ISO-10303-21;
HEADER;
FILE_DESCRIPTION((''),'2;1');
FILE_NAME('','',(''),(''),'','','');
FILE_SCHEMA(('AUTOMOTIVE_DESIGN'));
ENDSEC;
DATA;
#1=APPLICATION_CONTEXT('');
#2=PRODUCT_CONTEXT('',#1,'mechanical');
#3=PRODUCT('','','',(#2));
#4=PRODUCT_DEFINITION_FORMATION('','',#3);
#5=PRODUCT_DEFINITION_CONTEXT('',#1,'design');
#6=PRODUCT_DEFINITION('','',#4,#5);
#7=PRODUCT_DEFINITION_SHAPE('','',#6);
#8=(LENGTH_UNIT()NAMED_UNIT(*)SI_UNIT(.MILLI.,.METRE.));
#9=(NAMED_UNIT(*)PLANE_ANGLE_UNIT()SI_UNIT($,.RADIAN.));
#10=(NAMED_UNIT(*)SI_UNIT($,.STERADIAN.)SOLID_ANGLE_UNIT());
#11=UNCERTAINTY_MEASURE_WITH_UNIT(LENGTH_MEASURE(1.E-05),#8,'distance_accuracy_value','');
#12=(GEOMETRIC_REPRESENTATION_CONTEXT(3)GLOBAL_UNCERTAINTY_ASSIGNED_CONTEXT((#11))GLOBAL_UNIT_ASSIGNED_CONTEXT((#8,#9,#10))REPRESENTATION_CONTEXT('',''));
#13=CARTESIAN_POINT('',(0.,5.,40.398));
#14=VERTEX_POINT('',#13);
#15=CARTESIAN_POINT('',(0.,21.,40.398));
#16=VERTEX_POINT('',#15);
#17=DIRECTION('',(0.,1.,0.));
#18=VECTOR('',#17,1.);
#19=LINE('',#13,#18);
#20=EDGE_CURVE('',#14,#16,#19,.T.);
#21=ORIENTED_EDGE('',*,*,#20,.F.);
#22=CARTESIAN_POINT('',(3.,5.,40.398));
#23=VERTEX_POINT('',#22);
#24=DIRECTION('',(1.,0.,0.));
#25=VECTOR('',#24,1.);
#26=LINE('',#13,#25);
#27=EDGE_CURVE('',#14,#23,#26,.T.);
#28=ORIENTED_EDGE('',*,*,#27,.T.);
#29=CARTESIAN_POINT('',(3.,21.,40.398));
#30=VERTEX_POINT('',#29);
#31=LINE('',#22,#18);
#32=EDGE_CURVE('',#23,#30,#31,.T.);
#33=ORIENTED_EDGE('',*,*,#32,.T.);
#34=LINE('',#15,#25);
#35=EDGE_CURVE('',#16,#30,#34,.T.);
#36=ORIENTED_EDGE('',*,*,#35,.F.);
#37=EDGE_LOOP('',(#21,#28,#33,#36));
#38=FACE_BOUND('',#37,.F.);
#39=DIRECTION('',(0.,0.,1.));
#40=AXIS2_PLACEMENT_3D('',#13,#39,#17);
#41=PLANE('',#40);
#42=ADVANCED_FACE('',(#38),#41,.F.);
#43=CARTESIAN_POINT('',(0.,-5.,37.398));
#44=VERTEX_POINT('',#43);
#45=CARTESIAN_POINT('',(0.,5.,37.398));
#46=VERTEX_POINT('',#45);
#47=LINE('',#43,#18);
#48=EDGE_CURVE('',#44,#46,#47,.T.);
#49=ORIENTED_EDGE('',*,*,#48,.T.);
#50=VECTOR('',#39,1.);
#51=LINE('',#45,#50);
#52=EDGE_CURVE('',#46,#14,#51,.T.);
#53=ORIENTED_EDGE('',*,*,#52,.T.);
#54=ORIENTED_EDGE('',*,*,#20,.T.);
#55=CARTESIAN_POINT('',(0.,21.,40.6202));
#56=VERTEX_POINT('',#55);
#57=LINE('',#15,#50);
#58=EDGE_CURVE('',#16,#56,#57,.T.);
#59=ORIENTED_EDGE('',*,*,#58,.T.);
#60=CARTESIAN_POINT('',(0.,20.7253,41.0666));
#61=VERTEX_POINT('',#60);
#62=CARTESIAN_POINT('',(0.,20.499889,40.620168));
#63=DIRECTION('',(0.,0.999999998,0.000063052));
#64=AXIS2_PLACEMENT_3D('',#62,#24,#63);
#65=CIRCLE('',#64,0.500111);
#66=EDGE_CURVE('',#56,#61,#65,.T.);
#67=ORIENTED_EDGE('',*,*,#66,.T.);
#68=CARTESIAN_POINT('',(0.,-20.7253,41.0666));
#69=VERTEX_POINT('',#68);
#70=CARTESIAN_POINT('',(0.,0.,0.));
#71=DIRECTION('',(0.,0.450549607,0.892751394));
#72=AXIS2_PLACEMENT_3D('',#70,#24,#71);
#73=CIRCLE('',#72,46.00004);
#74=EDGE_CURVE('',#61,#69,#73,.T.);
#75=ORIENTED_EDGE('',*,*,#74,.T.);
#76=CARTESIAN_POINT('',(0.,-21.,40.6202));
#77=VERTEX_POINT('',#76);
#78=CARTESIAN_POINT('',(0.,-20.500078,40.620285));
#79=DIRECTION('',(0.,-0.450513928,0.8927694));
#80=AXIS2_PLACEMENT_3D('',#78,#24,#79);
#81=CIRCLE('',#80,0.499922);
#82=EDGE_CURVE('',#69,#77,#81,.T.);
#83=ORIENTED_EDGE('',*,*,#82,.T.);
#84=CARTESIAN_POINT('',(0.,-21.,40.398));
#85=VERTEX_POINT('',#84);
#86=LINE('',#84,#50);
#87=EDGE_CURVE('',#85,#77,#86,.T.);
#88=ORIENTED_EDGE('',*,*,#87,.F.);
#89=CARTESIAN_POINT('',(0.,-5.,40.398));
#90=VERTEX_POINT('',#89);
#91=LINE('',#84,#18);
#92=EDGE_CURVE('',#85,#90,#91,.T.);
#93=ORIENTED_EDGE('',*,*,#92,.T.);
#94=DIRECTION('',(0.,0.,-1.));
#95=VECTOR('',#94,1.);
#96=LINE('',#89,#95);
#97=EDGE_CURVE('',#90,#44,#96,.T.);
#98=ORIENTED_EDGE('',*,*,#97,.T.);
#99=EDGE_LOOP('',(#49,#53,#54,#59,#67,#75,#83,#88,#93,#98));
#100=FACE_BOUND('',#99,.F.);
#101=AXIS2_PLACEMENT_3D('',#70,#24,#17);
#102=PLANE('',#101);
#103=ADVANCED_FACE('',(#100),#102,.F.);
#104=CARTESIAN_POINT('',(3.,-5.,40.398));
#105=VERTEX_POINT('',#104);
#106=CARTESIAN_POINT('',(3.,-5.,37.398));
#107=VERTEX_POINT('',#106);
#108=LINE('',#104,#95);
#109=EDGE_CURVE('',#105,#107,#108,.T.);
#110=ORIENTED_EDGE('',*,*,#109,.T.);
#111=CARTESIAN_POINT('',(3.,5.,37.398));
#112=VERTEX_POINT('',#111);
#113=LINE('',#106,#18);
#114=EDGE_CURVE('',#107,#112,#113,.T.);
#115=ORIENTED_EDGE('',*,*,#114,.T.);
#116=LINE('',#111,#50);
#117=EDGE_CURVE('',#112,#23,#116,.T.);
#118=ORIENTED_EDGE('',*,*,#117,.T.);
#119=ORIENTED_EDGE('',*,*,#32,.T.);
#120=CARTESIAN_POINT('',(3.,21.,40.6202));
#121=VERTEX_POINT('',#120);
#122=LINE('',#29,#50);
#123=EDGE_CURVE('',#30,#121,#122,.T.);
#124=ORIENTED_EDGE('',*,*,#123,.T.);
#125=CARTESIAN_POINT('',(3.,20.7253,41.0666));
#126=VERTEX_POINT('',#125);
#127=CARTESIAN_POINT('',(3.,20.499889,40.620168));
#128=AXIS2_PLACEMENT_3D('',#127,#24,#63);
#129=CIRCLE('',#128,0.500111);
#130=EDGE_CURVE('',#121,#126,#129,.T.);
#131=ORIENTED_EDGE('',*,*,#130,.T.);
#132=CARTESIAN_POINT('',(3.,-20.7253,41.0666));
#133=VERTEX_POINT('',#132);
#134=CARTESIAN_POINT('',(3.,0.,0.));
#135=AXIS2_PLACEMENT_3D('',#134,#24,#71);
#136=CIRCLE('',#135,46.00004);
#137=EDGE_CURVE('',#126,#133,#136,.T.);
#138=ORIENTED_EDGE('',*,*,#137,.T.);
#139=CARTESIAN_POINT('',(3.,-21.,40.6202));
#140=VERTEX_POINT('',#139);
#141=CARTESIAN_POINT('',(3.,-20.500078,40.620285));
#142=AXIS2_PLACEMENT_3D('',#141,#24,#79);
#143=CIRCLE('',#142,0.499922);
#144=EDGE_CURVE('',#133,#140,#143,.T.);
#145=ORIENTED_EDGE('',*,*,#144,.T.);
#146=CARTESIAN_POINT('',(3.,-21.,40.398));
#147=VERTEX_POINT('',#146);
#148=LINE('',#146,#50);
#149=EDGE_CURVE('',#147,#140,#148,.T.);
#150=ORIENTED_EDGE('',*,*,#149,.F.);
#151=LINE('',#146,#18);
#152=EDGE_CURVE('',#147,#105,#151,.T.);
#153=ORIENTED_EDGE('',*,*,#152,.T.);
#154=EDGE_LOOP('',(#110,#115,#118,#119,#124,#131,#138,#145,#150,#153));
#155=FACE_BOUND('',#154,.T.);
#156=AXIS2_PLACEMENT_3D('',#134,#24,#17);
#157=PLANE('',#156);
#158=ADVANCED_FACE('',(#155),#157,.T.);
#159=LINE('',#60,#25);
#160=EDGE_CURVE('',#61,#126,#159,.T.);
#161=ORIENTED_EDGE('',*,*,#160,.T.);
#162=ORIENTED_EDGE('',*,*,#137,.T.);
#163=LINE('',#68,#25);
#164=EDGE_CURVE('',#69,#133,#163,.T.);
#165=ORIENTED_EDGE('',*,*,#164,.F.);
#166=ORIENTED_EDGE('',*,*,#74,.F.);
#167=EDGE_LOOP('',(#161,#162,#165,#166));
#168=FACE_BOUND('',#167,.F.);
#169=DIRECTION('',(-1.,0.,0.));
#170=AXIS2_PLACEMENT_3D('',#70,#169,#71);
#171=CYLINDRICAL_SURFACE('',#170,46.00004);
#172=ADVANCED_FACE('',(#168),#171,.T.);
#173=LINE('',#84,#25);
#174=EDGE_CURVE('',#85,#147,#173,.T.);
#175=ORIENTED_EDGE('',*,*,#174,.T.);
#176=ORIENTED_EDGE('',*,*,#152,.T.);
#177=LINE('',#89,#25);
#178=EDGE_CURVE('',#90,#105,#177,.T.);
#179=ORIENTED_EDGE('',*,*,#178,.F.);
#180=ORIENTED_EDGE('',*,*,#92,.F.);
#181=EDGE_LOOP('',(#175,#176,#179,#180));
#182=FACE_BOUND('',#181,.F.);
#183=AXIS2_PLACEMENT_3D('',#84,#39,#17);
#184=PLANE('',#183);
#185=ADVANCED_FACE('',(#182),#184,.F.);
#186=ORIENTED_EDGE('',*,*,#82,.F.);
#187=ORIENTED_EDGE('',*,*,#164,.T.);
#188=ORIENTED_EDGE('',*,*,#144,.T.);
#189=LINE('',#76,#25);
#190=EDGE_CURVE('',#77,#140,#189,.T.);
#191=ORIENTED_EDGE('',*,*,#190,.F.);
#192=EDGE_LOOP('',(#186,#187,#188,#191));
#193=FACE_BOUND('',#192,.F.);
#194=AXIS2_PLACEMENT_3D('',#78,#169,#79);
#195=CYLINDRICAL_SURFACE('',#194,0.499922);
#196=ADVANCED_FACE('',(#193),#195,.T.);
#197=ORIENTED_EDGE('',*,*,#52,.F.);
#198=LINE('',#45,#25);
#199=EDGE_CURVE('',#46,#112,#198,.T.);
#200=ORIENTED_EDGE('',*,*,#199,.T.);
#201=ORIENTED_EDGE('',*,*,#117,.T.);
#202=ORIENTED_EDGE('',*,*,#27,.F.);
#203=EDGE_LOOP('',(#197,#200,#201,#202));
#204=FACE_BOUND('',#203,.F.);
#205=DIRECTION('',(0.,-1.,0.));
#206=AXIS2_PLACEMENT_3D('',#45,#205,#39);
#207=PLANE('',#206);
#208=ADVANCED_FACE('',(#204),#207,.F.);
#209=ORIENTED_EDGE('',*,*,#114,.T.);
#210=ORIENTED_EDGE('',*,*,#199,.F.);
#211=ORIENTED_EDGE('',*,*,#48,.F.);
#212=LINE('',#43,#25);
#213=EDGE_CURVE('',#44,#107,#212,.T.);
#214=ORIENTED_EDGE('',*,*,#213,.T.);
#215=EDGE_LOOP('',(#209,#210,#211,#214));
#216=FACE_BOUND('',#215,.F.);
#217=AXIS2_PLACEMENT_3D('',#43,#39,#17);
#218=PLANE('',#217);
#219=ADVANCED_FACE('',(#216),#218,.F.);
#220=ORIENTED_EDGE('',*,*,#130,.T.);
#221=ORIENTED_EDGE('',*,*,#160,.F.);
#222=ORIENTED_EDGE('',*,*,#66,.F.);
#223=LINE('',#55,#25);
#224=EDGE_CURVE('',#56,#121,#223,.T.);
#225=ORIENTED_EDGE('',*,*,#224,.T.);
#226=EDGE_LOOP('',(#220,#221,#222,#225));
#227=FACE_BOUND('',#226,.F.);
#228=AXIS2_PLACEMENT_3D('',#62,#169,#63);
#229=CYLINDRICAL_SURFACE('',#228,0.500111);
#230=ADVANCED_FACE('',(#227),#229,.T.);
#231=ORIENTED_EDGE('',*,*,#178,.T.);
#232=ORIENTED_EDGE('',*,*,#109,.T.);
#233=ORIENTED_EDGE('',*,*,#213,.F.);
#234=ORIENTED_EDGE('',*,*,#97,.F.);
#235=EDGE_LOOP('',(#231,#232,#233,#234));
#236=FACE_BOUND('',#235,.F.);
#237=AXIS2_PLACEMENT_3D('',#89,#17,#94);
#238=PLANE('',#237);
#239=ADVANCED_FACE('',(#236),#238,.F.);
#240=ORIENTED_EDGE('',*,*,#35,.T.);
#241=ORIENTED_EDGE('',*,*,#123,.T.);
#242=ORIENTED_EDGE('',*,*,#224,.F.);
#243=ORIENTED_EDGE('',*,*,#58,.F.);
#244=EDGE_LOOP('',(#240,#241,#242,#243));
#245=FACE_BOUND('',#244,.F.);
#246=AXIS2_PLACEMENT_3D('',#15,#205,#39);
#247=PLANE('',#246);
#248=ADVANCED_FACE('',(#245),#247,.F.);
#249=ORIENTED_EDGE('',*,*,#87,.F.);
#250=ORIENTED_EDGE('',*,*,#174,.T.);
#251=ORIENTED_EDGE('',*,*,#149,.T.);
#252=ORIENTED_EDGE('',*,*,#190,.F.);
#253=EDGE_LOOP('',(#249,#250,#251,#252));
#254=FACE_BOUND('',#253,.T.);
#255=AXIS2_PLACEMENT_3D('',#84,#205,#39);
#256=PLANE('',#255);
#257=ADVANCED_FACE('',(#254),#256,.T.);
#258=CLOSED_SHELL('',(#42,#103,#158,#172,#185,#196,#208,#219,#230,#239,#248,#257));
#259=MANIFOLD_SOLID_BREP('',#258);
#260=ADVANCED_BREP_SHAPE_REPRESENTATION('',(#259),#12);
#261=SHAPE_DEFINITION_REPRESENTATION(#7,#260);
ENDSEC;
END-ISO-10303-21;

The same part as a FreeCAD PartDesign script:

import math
import FreeCAD as App
import Part
import Sketcher

V = App.Vector
Q = App.Units.Quantity

doc = App.newDocument("Part")
body = doc.addObject("PartDesign::Body", "Body")

sketch1 = body.newObject("Sketcher::SketchObject", "Sketch")
sketch1.AttachmentSupport = (doc.getObject("YZ_Plane"), [""])
sketch1.MapMode = "FlatFace"
sketch1.addGeometry([
    Part.LineSegment(V(-21, 40.398, 0), V(-5, 40.398, 0)),
    Part.LineSegment(V(-5, 40.398, 0), V(-5, 37.398, 0)),
    Part.LineSegment(V(-5, 37.398, 0), V(5, 37.398, 0)),
    Part.LineSegment(V(5, 37.398, 0), V(5, 40.398, 0)),
    Part.LineSegment(V(5, 40.398, 0), V(21, 40.398, 0)),
    Part.LineSegment(V(21, 40.398, 0), V(21, 40.6202, 0)),
    Part.ArcOfCircle(Part.Circle(V(20.5, 40.6202, 0), V(0, 0, 1), 0.5), math.radians(0), math.radians(63.219726)),
    Part.ArcOfCircle(Part.Circle(V(0, 0, 0), V(0, 0, 1), 46.00004), math.radians(63.221048), math.radians(116.778952)),
    Part.ArcOfCircle(Part.Circle(V(-20.5, 40.6202, 0), V(0, 0, 1), 0.500033), math.radians(116.780274), math.radians(180)),
    Part.LineSegment(V(-21, 40.6202, 0), V(-21, 40.398, 0)),
], False)
sketch1.addConstraint([
    Sketcher.Constraint("Coincident", 0, 2, 1, 1),
    Sketcher.Constraint("Coincident", 1, 2, 2, 1),
    Sketcher.Constraint("Coincident", 2, 2, 3, 1),
    Sketcher.Constraint("Coincident", 3, 2, 4, 1),
    Sketcher.Constraint("Coincident", 4, 2, 5, 1),
    Sketcher.Constraint("Tangent", 5, 2, 6, 1),
    Sketcher.Constraint("Tangent", 6, 2, 7, 1),
    Sketcher.Constraint("Tangent", 7, 2, 8, 1),
    Sketcher.Constraint("Tangent", 8, 2, 9, 1),
    Sketcher.Constraint("Coincident", 9, 2, 0, 1),
    Sketcher.Constraint("Horizontal", 0),
    Sketcher.Constraint("Vertical", 1),
    Sketcher.Constraint("Horizontal", 2),
    Sketcher.Constraint("Vertical", 3),
    Sketcher.Constraint("Horizontal", 4),
    Sketcher.Constraint("Vertical", 5),
    Sketcher.Constraint("Vertical", 9),
    Sketcher.Constraint("Coincident", 7, 3, -1, 1),
    Sketcher.Constraint("Equal", 6, 8),
    Sketcher.Constraint("Symmetric", 0, 2, 3, 2, -2),
    Sketcher.Constraint("Horizontal", 6, 3, 8, 3),
    Sketcher.Constraint("Radius", 6, Q("0.5 mm")),
    Sketcher.Constraint("DistanceX", 0, 1, 0, 2, Q("16 mm")),
    Sketcher.Constraint("DistanceX", 2, 1, 2, 2, Q("10 mm")),
    Sketcher.Constraint("DistanceY", 1, 2, 1, 1, Q("3 mm")),
    Sketcher.Constraint("Radius", 7, Q("46 mm")),
    Sketcher.Constraint("DistanceY", -1, 1, 1, 2, Q("37.398 mm")),
])
pad1 = body.newObject("PartDesign::Pad", "Pad")
pad1.Profile = sketch1
pad1.Length = 3

doc.recompute()
